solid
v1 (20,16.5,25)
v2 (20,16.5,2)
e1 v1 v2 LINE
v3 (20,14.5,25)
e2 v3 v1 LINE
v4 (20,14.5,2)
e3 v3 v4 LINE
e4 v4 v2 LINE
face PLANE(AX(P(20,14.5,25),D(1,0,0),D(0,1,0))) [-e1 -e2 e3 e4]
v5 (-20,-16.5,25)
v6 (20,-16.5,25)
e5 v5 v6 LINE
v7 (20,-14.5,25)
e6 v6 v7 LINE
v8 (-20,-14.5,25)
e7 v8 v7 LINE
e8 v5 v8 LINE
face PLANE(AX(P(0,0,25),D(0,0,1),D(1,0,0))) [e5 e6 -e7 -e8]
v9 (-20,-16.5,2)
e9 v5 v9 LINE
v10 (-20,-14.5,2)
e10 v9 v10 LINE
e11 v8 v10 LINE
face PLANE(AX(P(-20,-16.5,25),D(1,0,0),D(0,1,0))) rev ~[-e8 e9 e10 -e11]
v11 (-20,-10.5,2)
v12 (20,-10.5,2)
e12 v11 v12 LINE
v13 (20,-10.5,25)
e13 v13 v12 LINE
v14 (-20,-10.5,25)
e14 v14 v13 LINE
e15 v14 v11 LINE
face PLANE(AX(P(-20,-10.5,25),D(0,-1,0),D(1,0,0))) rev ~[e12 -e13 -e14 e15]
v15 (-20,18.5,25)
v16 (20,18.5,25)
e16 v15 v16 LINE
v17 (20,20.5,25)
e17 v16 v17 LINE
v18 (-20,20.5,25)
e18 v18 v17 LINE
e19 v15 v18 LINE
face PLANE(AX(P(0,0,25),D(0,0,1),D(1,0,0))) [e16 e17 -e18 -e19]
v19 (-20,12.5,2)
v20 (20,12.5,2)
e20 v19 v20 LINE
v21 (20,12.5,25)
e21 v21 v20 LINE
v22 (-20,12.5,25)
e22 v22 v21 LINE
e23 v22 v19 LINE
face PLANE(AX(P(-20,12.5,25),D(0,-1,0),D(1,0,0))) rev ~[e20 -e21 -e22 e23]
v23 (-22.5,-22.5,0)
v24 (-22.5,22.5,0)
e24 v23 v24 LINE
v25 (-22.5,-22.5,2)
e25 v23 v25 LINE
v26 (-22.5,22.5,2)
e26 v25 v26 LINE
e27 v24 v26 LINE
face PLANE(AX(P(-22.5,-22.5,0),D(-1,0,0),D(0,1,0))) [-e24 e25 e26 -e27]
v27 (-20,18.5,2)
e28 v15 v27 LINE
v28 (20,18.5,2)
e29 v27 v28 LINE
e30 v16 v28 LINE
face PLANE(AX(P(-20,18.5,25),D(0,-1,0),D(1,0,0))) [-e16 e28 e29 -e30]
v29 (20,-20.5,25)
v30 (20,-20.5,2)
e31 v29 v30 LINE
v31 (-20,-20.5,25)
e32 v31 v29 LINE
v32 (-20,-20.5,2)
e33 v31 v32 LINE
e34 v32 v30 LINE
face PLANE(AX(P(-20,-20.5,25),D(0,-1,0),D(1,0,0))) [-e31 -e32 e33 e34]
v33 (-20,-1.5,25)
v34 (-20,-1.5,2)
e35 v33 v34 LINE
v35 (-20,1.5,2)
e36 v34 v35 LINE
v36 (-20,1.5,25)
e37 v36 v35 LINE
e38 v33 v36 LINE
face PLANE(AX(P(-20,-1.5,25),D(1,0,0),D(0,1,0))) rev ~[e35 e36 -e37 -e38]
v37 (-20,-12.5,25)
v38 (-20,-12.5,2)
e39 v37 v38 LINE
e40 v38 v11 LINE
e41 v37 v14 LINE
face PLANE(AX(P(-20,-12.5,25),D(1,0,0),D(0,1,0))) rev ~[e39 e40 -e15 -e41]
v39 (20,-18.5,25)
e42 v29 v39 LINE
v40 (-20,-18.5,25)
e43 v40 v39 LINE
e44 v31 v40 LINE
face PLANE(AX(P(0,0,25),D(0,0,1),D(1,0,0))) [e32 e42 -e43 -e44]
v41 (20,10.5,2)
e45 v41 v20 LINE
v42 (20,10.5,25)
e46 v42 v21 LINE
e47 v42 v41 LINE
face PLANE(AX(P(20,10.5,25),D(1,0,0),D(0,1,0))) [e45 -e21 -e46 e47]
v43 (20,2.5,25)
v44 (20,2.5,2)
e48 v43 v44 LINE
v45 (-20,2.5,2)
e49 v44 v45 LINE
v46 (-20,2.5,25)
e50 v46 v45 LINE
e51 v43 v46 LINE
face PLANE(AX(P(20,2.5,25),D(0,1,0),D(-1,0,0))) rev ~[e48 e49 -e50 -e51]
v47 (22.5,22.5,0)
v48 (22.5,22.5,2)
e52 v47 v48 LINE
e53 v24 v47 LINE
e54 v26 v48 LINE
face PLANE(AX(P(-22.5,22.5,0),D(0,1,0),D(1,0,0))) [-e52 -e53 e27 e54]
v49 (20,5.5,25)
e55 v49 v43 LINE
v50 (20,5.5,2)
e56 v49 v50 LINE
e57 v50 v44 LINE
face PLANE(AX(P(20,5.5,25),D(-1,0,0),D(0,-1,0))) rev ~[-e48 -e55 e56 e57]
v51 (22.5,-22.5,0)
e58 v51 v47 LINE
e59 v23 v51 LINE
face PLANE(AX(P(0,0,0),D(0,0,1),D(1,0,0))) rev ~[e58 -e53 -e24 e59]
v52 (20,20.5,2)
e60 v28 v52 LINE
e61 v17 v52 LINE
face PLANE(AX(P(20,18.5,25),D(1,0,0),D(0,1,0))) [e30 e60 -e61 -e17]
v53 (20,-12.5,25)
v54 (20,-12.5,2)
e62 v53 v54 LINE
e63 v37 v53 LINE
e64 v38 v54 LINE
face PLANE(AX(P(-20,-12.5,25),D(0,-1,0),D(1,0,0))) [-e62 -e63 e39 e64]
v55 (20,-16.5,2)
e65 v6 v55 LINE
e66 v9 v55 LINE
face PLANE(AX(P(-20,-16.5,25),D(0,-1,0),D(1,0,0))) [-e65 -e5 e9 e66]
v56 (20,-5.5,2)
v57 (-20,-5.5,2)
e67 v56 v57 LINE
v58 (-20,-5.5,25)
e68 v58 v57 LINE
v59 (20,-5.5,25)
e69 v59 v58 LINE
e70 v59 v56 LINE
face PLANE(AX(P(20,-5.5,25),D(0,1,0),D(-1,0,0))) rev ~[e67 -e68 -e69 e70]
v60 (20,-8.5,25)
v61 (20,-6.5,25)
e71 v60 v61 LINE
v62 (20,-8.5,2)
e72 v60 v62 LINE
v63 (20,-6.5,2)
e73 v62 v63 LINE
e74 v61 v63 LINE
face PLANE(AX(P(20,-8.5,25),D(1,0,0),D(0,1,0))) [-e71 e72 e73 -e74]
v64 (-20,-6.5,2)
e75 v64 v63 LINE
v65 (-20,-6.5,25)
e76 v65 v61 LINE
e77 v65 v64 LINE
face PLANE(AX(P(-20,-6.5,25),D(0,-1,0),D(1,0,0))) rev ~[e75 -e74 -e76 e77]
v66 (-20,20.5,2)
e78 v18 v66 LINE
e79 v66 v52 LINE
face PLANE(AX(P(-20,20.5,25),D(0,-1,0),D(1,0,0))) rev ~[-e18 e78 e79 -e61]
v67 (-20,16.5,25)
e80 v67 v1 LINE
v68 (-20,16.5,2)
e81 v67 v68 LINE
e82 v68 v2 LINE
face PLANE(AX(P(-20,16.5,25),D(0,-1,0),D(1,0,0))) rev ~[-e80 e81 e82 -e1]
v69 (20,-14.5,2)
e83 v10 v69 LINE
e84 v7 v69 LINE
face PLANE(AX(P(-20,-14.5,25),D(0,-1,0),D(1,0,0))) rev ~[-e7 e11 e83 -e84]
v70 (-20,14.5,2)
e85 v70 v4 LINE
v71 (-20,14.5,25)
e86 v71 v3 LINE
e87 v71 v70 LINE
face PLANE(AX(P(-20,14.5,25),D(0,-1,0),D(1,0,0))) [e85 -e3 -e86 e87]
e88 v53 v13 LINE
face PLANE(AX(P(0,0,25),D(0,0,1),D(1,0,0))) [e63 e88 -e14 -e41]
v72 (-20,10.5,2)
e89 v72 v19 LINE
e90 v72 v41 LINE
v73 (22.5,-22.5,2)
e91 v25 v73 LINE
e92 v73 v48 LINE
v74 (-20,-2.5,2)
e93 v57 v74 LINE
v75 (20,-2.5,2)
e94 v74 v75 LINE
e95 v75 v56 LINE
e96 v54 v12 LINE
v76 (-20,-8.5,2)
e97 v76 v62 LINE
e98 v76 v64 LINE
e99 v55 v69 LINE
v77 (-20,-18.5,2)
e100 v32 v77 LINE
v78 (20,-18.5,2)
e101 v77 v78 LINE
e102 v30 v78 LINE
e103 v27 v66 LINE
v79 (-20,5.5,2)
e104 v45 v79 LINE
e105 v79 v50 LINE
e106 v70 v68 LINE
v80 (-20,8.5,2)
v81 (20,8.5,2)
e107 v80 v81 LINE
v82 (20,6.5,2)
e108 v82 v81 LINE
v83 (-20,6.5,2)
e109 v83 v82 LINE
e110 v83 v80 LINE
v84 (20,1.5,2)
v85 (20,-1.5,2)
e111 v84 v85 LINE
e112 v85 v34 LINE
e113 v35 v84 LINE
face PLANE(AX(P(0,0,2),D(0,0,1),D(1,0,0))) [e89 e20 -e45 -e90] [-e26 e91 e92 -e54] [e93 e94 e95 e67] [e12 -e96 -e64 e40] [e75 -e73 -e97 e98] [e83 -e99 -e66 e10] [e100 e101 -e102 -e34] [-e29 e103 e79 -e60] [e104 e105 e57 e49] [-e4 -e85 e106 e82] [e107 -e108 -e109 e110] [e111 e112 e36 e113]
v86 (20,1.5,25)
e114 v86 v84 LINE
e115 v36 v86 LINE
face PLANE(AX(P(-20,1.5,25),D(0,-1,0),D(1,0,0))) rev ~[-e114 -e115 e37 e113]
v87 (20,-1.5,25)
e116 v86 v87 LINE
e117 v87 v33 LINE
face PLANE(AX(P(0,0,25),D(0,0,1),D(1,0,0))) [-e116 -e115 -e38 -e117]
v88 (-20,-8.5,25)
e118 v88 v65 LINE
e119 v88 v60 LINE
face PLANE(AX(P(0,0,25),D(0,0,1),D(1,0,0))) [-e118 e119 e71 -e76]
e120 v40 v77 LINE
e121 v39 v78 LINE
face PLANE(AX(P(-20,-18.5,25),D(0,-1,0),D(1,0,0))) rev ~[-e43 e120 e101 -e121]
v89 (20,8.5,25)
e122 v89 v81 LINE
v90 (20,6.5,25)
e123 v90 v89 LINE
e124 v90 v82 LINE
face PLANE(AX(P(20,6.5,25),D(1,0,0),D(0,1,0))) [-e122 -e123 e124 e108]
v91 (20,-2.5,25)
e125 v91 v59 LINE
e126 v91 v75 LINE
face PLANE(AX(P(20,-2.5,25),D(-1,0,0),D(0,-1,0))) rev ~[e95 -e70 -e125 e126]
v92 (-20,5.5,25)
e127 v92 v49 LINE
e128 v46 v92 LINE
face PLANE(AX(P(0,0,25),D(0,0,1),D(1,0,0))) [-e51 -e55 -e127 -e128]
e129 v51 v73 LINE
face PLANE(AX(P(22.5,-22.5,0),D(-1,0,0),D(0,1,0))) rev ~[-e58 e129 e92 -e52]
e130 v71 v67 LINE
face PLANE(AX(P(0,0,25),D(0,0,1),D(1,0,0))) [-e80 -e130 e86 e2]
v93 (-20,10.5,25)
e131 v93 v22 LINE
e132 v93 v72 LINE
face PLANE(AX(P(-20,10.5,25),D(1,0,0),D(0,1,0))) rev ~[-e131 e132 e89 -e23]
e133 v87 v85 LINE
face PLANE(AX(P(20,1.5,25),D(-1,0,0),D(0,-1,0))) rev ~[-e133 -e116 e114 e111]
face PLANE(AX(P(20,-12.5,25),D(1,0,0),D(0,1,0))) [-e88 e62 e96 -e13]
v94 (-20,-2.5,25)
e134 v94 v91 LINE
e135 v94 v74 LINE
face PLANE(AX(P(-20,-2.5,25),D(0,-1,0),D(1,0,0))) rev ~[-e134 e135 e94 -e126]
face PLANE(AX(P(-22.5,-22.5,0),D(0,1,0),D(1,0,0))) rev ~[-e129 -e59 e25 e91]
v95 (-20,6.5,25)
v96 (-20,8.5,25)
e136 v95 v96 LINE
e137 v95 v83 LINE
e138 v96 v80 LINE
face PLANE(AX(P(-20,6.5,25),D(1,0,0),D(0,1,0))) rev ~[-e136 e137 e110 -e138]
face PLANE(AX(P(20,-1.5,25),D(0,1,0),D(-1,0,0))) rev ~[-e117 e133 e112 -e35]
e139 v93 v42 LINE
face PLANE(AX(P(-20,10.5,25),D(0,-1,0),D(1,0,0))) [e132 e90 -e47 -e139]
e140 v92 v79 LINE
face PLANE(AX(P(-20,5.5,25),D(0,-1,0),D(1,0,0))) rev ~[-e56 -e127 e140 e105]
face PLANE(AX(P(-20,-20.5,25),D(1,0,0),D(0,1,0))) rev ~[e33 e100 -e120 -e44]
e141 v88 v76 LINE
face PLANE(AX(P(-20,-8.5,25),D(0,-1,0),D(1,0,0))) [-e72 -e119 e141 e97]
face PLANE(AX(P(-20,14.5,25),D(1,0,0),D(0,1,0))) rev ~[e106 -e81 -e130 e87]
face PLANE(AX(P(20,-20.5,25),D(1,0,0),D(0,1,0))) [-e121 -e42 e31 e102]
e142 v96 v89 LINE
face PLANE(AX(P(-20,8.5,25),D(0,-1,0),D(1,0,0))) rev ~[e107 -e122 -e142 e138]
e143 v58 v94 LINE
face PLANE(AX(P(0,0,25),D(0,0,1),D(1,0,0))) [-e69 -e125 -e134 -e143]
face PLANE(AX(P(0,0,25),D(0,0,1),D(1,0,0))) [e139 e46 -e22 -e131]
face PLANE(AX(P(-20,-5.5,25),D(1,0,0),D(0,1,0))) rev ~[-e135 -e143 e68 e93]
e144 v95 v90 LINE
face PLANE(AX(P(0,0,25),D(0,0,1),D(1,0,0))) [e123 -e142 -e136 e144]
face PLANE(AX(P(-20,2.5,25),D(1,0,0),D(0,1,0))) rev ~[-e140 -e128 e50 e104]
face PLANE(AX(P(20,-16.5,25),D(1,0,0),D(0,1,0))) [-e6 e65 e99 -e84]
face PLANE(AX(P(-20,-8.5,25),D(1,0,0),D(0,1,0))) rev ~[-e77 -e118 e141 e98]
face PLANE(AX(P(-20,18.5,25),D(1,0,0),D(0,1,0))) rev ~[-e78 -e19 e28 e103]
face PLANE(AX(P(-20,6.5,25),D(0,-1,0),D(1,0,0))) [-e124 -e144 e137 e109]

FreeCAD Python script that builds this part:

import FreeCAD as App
import Part
import Sketcher

V = App.Vector
Q = App.Units.Quantity


def add_polygon(sketch, points):
    """Adds a closed chain of lines whose ends are joined by coincident constraints."""
    first, n = sketch.GeometryCount, len(points)
    for a, b in zip(points, points[1:] + points[:1]):
        sketch.addGeometry(Part.LineSegment(App.Vector(*a, 0), App.Vector(*b, 0)), False)
    for i in range(n):
        sketch.addConstraint(Sketcher.Constraint("Coincident", first + i, 2, first + (i + 1) % n, 1))

doc = App.newDocument("Part")
body = doc.addObject("PartDesign::Body", "Body")

# Sketch on XY plane
sketch1 = doc.addObject("Sketcher::SketchObject", "Sketch")
body.addObject(sketch1)
sketch1.AttachmentSupport = (doc.XY_Plane, [""])
sketch1.MapMode = "FlatFace"
add_polygon(sketch1, [(-22, 22), (-22, -22), (22, -22), (22, 22)])  # lines 0-3
sketch1.addConstraint([
    Sketcher.Constraint("Vertical", 0),
    Sketcher.Constraint("Horizontal", 1),
    Sketcher.Constraint("Vertical", 2),
    Sketcher.Constraint("Horizontal", 3),
    Sketcher.Constraint("Symmetric", 0, 2, 2, 2, -1, 1),
    Sketcher.Constraint("Equal", 3, 0),
    Sketcher.Constraint("DistanceX", 1, 1, 1, 2, Q("45 mm")),
])
pad1 = doc.addObject("PartDesign::Pad", "Pad")
body.addObject(pad1)
pad1.Profile = sketch1
pad1.Length = 25

# Sketch on XY plane
sketch2 = doc.addObject("Sketcher::SketchObject", "Sketch001")
body.addObject(sketch2)
sketch2.AttachmentSupport = (doc.XY_Plane, [""])
sketch2.MapMode = "FlatFace"
sketch2.AttachmentOffset = App.Placement(V(0, 0, 25), App.Rotation())
add_polygon(sketch2, [(-22.5, 22.5), (-22.5, -22.5), (22.5, -22.5), (22.5, 22.5)])  # lines 0-3
add_polygon(sketch2, [(20, -20.5), (-20, -20.5), (-20, -18.5), (20, -18.5)])  # lines 4-7
add_polygon(sketch2, [(20, -16.5), (-20, -16.5), (-20, -14.5), (20, -14.5)])  # lines 8-11
add_polygon(sketch2, [(20, -12.5), (-20, -12.5), (-20, -10.5), (20, -10.5)])  # lines 12-15
add_polygon(sketch2, [(20, -8.5), (-20, -8.5), (-20, -6.5), (20, -6.5)])  # lines 16-19
add_polygon(sketch2, [(-20, -5.5), (-20, -2.5), (20, -2.5), (20, -5.5)])  # lines 20-23
add_polygon(sketch2, [(-20, -1.5), (-20, 1.5), (20, 1.5), (20, -1.5)])  # lines 24-27
add_polygon(sketch2, [(-20, 2.5), (-20, 5.5), (20, 5.5), (20, 2.5)])  # lines 28-31
add_polygon(sketch2, [(20, 6.5), (-20, 6.5), (-20, 8.5), (20, 8.5)])  # lines 32-35
add_polygon(sketch2, [(20, 10.5), (-20, 10.5), (-20, 12.5), (20, 12.5)])  # lines 36-39
add_polygon(sketch2, [(20, 14.5), (-20, 14.5), (-20, 16.5), (20, 16.5)])  # lines 40-43
add_polygon(sketch2, [(20, 18.5), (-20, 18.5), (-20, 20.5), (20, 20.5)])  # lines 44-47
sketch2.addConstraint([
    Sketcher.Constraint("Vertical", 0),
    Sketcher.Constraint("Horizontal", 1),
    Sketcher.Constraint("Vertical", 2),
    Sketcher.Constraint("Horizontal", 3),
    Sketcher.Constraint("Horizontal", 4),
    Sketcher.Constraint("Vertical", 5),
    Sketcher.Constraint("Horizontal", 6),
    Sketcher.Constraint("Vertical", 7),
    Sketcher.Constraint("Horizontal", 8),
    Sketcher.Constraint("Vertical", 9),
    Sketcher.Constraint("Horizontal", 10),
    Sketcher.Constraint("Vertical", 11),
    Sketcher.Constraint("Horizontal", 12),
    Sketcher.Constraint("Vertical", 13),
    Sketcher.Constraint("Horizontal", 14),
    Sketcher.Constraint("Vertical", 15),
    Sketcher.Constraint("Horizontal", 16),
    Sketcher.Constraint("Vertical", 17),
    Sketcher.Constraint("Horizontal", 18),
    Sketcher.Constraint("Vertical", 19),
    Sketcher.Constraint("Vertical", 20),
    Sketcher.Constraint("Horizontal", 21),
    Sketcher.Constraint("Vertical", 22),
    Sketcher.Constraint("Horizontal", 23),
    Sketcher.Constraint("Vertical", 24),
    Sketcher.Constraint("Horizontal", 25),
    Sketcher.Constraint("Vertical", 26),
    Sketcher.Constraint("Horizontal", 27),
    Sketcher.Constraint("Vertical", 28),
    Sketcher.Constraint("Horizontal", 29),
    Sketcher.Constraint("Vertical", 30),
    Sketcher.Constraint("Horizontal", 31),
    Sketcher.Constraint("Horizontal", 32),
    Sketcher.Constraint("Vertical", 33),
    Sketcher.Constraint("Horizontal", 34),
    Sketcher.Constraint("Vertical", 35),
    Sketcher.Constraint("Horizontal", 36),
    Sketcher.Constraint("Vertical", 37),
    Sketcher.Constraint("Horizontal", 38),
    Sketcher.Constraint("Vertical", 39),
    Sketcher.Constraint("Horizontal", 40),
    Sketcher.Constraint("Vertical", 41),
    Sketcher.Constraint("Horizontal", 42),
    Sketcher.Constraint("Vertical", 43),
    Sketcher.Constraint("Horizontal", 44),
    Sketcher.Constraint("Vertical", 45),
    Sketcher.Constraint("Horizontal", 46),
    Sketcher.Constraint("Vertical", 47),
    Sketcher.Constraint("Symmetric", 0, 2, 2, 2, -1, 1),
    Sketcher.Constraint("Symmetric", 24, 2, 26, 2, -1, 1),
    Sketcher.Constraint("Symmetric", 22, 2, 28, 2, -1, 1),
    Sketcher.Constraint("Symmetric", 20, 2, 30, 2, -1, 1),
    Sketcher.Constraint("Symmetric", 18, 2, 32, 2, -1, 1),
    Sketcher.Constraint("Symmetric", 16, 2, 34, 2, -1, 1),
    Sketcher.Constraint("Symmetric", 14, 2, 36, 2, -1, 1),
    Sketcher.Constraint("Symmetric", 12, 2, 38, 2, -1, 1),
    Sketcher.Constraint("Symmetric", 10, 2, 40, 2, -1, 1),
    Sketcher.Constraint("Symmetric", 8, 2, 42, 2, -1, 1),
    Sketcher.Constraint("Symmetric", 6, 2, 44, 2, -1, 1),
    Sketcher.Constraint("Symmetric", 4, 2, 46, 2, -1, 1),
    Sketcher.Constraint("Vertical", 5, 2, 8, 2),
    Sketcher.Constraint("Vertical", 7, 2, 10, 2),
    Sketcher.Constraint("Vertical", 9, 2, 12, 2),
    Sketcher.Constraint("Vertical", 11, 2, 14, 2),
    Sketcher.Constraint("Vertical", 13, 2, 16, 2),
    Sketcher.Constraint("Vertical", 15, 2, 18, 2),
    Sketcher.Constraint("Vertical", 17, 2, 20, 2),
    Sketcher.Constraint("Vertical", 19, 2, 21, 2),
    Sketcher.Constraint("Vertical", 23, 2, 24, 2),
    Sketcher.Constraint("Vertical", 22, 2, 25, 2),
    Sketcher.Constraint("Equal", 3, 0),
    Sketcher.Constraint("Equal", 7, 9),
    Sketcher.Constraint("Equal", 11, 13),
    Sketcher.Constraint("Equal", 15, 17),
    Sketcher.Constraint("Equal", 22, 24),
    Sketcher.Constraint("DistanceX", 1, 1, 1, 2, Q("45 mm")),
    Sketcher.Constraint("DistanceX", 4, 2, 4, 1, Q("40 mm")),
    Sketcher.Constraint("DistanceY", 5, 1, 5, 2, Q("2 mm")),
    Sketcher.Constraint("DistanceY", 20, 1, 20, 2, Q("3 mm")),
    Sketcher.Constraint("DistanceY", 0, 2, 4, 2, Q("2 mm")),
    Sketcher.Constraint("DistanceY", 5, 2, 8, 2, Q("2 mm")),
    Sketcher.Constraint("DistanceY", 9, 2, 12, 2, Q("2 mm")),
    Sketcher.Constraint("DistanceY", 13, 2, 16, 2, Q("2 mm")),
    Sketcher.Constraint("DistanceY", 17, 2, 20, 2, Q("4 mm")),
])
pocket1 = doc.addObject("PartDesign::Pocket", "Pocket")
body.addObject(pocket1)
pocket1.Profile = sketch2
pocket1.Length = 23

doc.recompute()
